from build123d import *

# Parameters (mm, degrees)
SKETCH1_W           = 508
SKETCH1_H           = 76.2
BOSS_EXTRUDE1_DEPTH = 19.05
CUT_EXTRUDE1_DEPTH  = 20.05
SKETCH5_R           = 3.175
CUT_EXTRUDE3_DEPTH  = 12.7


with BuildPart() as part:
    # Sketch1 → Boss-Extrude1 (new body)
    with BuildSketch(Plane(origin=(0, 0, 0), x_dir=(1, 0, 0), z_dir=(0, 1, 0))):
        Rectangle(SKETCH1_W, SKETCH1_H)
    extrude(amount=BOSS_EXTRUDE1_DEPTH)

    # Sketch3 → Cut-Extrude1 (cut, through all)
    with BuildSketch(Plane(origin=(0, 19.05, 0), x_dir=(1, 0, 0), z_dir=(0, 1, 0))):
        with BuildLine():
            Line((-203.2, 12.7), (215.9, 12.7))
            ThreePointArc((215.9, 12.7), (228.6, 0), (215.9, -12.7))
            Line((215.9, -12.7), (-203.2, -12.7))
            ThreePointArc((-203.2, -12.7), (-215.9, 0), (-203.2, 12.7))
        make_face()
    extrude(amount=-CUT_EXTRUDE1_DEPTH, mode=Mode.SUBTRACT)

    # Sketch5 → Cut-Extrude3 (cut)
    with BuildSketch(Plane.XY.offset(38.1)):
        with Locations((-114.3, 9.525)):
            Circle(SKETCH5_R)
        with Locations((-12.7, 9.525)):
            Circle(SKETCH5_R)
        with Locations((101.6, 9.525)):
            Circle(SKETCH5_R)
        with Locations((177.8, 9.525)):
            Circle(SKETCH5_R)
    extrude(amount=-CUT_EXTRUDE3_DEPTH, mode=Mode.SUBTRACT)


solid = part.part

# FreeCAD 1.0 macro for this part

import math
import FreeCAD as App
import Part
import Sketcher
Q = App.Units.Quantity

doc = App.newDocument("Part")
params = doc.addObject("Spreadsheet::Sheet", "Params")
for row, (alias, value) in enumerate([
    ("sketch1_width", "20 in"),
    ("sketch1_height", "3 in"),
    ("pad1_length", "0.75 in"),
    ("sketch2_radius", "0.5 in"),
    ("sketch2_width", "16.5 in"),
    ("sketch3_diameter", "0.25 in"),
    ("pocket2_length", "0.5 in"),
], start=1):
    params.set(f"A{row}", alias)
    params.set(f"B{row}", "=" + value)
    params.setAlias(f"B{row}", alias)

body = doc.addObject("PartDesign::Body", "Body")

sketch1 = body.newObject("Sketcher::SketchObject", "Sketch")
sketch1.AttachmentSupport = (doc.getObject("XZ_Plane"), [""])
sketch1.MapMode = "FlatFace"
sketch1.addGeometry(Part.LineSegment(App.Vector(-254, -38, 0), App.Vector(-254, 38, 0)), False)
sketch1.addGeometry(Part.LineSegment(App.Vector(-254, 38, 0), App.Vector(254, 38, 0)), False)
sketch1.addGeometry(Part.LineSegment(App.Vector(254, 38, 0), App.Vector(254, -38, 0)), False)
sketch1.addGeometry(Part.LineSegment(App.Vector(254, -38, 0), App.Vector(-254, -38, 0)), False)
sketch1.addConstraint(Sketcher.Constraint("Coincident", 0, 2, 1, 1))
sketch1.addConstraint(Sketcher.Constraint("Coincident", 1, 2, 2, 1))
sketch1.addConstraint(Sketcher.Constraint("Coincident", 2, 2, 3, 1))
sketch1.addConstraint(Sketcher.Constraint("Coincident", 3, 2, 0, 1))
sketch1.addConstraint(Sketcher.Constraint("Vertical", 0))
sketch1.addConstraint(Sketcher.Constraint("Horizontal", 1))
sketch1.addConstraint(Sketcher.Constraint("Vertical", 2))
sketch1.addConstraint(Sketcher.Constraint("Horizontal", 3))
sketch1.addConstraint(Sketcher.Constraint("Symmetric", 0, 2, 2, 2, -1, 1))
sketch1.addConstraint(Sketcher.Constraint("DistanceX", 1, 1, 1, 2, Q("20 in")))
sketch1.addConstraint(Sketcher.Constraint("DistanceY", 0, 1, 0, 2, Q("3 in")))
sketch1.setExpression("Constraints[9]", "Params.sketch1_width")
sketch1.setExpression("Constraints[10]", "Params.sketch1_height")
pad1 = body.newObject("PartDesign::Pad", "Pad")
pad1.Profile = sketch1
pad1.setExpression("Length", "Params.pad1_length")
pad1.Reversed = True

sketch2 = body.newObject("Sketcher::SketchObject", "Sketch001")
sketch2.AttachmentSupport = (doc.getObject("XZ_Plane"), [""])
sketch2.MapMode = "FlatFace"
sketch2.AttachmentOffset = App.Placement(App.Vector(0, 0, -0.75 * 25.4), App.Rotation())
sketch2.addGeometry(Part.LineSegment(App.Vector(216, -13, 0), App.Vector(-203, -13, 0)), False)
sketch2.addGeometry(Part.ArcOfCircle(Part.Circle(App.Vector(-203, 0, 0), App.Vector(0, 0, 1), 13), math.radians(90), math.radians(270)), False)
sketch2.addGeometry(Part.LineSegment(App.Vector(-203, 13, 0), App.Vector(216, 13, 0)), False)
sketch2.addGeometry(Part.ArcOfCircle(Part.Circle(App.Vector(216, 0, 0), App.Vector(0, 0, 1), 13), math.radians(-90), math.radians(90)), False)
sketch2.addConstraint(Sketcher.Constraint("Tangent", 0, 2, 1, 2))
sketch2.addConstraint(Sketcher.Constraint("Tangent", 1, 1, 2, 1))
sketch2.addConstraint(Sketcher.Constraint("Tangent", 2, 2, 3, 2))
sketch2.addConstraint(Sketcher.Constraint("Tangent", 3, 1, 0, 1))
sketch2.addConstraint(Sketcher.Constraint("Horizontal", 0))
sketch2.addConstraint(Sketcher.Constraint("Horizontal", 2))
sketch2.addConstraint(Sketcher.Constraint("PointOnObject", 1, 3, -1))
sketch2.addConstraint(Sketcher.Constraint("Radius", 1, Q("0.5 in")))
sketch2.addConstraint(Sketcher.Constraint("DistanceX", 0, 2, 0, 1, Q("16.5 in")))
sketch2.addConstraint(Sketcher.Constraint("DistanceX", 1, 3, -1, 1, Q("8 in")))
sketch2.setExpression("Constraints[7]", "Params.sketch2_radius")
sketch2.setExpression("Constraints[8]", "Params.sketch2_width")
pocket1 = body.newObject("PartDesign::Pocket", "Pocket")
pocket1.Profile = sketch2
pocket1.Type = "ThroughAll"
pocket1.Reversed = True

sketch3 = body.newObject("Sketcher::SketchObject", "Sketch002")
sketch3.AttachmentSupport = (doc.getObject("XY_Plane"), [""])
sketch3.MapMode = "FlatFace"
sketch3.AttachmentOffset = App.Placement(App.Vector(0, 0, 1.5 * 25.4), App.Rotation())
sketch3.addGeometry(Part.Circle(App.Vector(-114.3, 9.5, 0), App.Vector(0, 0, 1), 3.2), False)
sketch3.addGeometry(Part.Circle(App.Vector(-12.7, 9.5, 0), App.Vector(0, 0, 1), 3.2), False)
sketch3.addGeometry(Part.Circle(App.Vector(101.6, 9.5, 0), App.Vector(0, 0, 1), 3.2), False)
sketch3.addGeometry(Part.Circle(App.Vector(177.8, 9.5, 0), App.Vector(0, 0, 1), 3.2), False)
sketch3.addConstraint(Sketcher.Constraint("Equal", 0, 1))
sketch3.addConstraint(Sketcher.Constraint("Equal", 1, 2))
sketch3.addConstraint(Sketcher.Constraint("Equal", 2, 3))
sketch3.addConstraint(Sketcher.Constraint("Horizontal", 0, 3, 1, 3))
sketch3.addConstraint(Sketcher.Constraint("Horizontal", 1, 3, 2, 3))
sketch3.addConstraint(Sketcher.Constraint("Horizontal", 2, 3, 3, 3))
sketch3.addConstraint(Sketcher.Constraint("Diameter", 0, Q("0.25 in")))
sketch3.addConstraint(Sketcher.Constraint("DistanceX", -1, 1, 2, 3, Q("4 in")))
sketch3.addConstraint(Sketcher.Constraint("DistanceX", -1, 1, 3, 3, Q("7 in")))
sketch3.addConstraint(Sketcher.Constraint("DistanceX", 0, 3, 1, 3, Q("4 in")))
sketch3.addConstraint(Sketcher.Constraint("DistanceX", 0, 3, -1, 1, Q("4.5 in")))
sketch3.addConstraint(Sketcher.Constraint("DistanceY", -1, 1, 0, 3, Q("0.375 in")))
sketch3.setExpression("Constraints[6]", "Params.sketch3_diameter")
pocket2 = body.newObject("PartDesign::Pocket", "Pocket001")
pocket2.Profile = sketch3
pocket2.setExpression("Length", "Params.pocket2_length")

doc.recompute()
